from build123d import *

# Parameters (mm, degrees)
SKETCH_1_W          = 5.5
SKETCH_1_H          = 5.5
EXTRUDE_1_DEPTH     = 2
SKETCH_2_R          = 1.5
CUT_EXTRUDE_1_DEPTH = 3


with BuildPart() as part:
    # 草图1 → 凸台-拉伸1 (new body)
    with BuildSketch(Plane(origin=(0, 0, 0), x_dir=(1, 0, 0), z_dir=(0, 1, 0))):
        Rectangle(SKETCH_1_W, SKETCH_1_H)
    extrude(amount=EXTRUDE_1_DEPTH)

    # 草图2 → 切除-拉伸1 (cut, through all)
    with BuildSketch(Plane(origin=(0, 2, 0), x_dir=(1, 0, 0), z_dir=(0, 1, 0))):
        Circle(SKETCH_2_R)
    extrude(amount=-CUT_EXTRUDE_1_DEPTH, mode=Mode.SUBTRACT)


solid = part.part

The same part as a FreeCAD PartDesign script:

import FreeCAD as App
import Part
import Sketcher
Q = App.Units.Quantity


def add_polygon(sketch, points):
    """Adds a closed chain of lines whose ends are joined by coincident constraints."""
    first, n = sketch.GeometryCount, len(points)
    for a, b in zip(points, points[1:] + points[:1]):
        sketch.addGeometry(Part.LineSegment(App.Vector(*a, 0), App.Vector(*b, 0)), False)
    for i in range(n):
        sketch.addConstraint(Sketcher.Constraint("Coincident", first + i, 2, first + (i + 1) % n, 1))

doc = App.newDocument("Part")
params = doc.addObject("Spreadsheet::Sheet", "Params")
for row, (alias, value) in enumerate([
    ("sketch1_width", "5.5 mm"),
    ("pad1_length", "2 mm"),
    ("sketch2_diameter", "3 mm"),
], start=1):
    params.set(f"A{row}", alias)
    params.set(f"B{row}", "=" + value)
    params.setAlias(f"B{row}", alias)

body = doc.addObject("PartDesign::Body", "Body")

sketch1 = doc.addObject("Sketcher::SketchObject", "Sketch")
body.addObject(sketch1)
sketch1.AttachmentSupport = (doc.XZ_Plane, [""])
sketch1.MapMode = "FlatFace"
add_polygon(sketch1, [(-3, -3), (-3, 3), (3, 3), (3, -3)])
sketch1.addConstraint(Sketcher.Constraint("Vertical", 0))
sketch1.addConstraint(Sketcher.Constraint("Horizontal", 1))
sketch1.addConstraint(Sketcher.Constraint("Vertical", 2))
sketch1.addConstraint(Sketcher.Constraint("Horizontal", 3))
sketch1.addConstraint(Sketcher.Constraint("Symmetric", 0, 2, 2, 2, -1, 1))
sketch1.addConstraint(Sketcher.Constraint("Equal", 3, 0))
sketch1.addConstraint(Sketcher.Constraint("DistanceX", 1, 1, 1, 2, Q("5.5 mm")))
sketch1.setExpression("Constraints[10]", "Params.sketch1_width")
pad1 = doc.addObject("PartDesign::Pad", "Pad")
body.addObject(pad1)
pad1.Profile = sketch1
pad1.setExpression("Length", "Params.pad1_length")
pad1.Reversed = True

sketch2 = doc.addObject("Sketcher::SketchObject", "Sketch001")
body.addObject(sketch2)
sketch2.AttachmentSupport = (doc.XZ_Plane, [""])
sketch2.MapMode = "FlatFace"
sketch2.AttachmentOffset = App.Placement(App.Vector(0, 0, -2), App.Rotation())
sketch2.addGeometry(Part.Circle(App.Vector(0, 0, 0), App.Vector(0, 0, 1), 1.5), False)
sketch2.addConstraint(Sketcher.Constraint("Coincident", 0, 3, -1, 1))
sketch2.addConstraint(Sketcher.Constraint("Diameter", 0, Q("3 mm")))
sketch2.setExpression("Constraints[1]", "Params.sketch2_diameter")
pocket1 = doc.addObject("PartDesign::Pocket", "Pocket")
body.addObject(pocket1)
pocket1.Profile = sketch2
pocket1.Type = "ThroughAll"
pocket1.Reversed = True

doc.recompute()
